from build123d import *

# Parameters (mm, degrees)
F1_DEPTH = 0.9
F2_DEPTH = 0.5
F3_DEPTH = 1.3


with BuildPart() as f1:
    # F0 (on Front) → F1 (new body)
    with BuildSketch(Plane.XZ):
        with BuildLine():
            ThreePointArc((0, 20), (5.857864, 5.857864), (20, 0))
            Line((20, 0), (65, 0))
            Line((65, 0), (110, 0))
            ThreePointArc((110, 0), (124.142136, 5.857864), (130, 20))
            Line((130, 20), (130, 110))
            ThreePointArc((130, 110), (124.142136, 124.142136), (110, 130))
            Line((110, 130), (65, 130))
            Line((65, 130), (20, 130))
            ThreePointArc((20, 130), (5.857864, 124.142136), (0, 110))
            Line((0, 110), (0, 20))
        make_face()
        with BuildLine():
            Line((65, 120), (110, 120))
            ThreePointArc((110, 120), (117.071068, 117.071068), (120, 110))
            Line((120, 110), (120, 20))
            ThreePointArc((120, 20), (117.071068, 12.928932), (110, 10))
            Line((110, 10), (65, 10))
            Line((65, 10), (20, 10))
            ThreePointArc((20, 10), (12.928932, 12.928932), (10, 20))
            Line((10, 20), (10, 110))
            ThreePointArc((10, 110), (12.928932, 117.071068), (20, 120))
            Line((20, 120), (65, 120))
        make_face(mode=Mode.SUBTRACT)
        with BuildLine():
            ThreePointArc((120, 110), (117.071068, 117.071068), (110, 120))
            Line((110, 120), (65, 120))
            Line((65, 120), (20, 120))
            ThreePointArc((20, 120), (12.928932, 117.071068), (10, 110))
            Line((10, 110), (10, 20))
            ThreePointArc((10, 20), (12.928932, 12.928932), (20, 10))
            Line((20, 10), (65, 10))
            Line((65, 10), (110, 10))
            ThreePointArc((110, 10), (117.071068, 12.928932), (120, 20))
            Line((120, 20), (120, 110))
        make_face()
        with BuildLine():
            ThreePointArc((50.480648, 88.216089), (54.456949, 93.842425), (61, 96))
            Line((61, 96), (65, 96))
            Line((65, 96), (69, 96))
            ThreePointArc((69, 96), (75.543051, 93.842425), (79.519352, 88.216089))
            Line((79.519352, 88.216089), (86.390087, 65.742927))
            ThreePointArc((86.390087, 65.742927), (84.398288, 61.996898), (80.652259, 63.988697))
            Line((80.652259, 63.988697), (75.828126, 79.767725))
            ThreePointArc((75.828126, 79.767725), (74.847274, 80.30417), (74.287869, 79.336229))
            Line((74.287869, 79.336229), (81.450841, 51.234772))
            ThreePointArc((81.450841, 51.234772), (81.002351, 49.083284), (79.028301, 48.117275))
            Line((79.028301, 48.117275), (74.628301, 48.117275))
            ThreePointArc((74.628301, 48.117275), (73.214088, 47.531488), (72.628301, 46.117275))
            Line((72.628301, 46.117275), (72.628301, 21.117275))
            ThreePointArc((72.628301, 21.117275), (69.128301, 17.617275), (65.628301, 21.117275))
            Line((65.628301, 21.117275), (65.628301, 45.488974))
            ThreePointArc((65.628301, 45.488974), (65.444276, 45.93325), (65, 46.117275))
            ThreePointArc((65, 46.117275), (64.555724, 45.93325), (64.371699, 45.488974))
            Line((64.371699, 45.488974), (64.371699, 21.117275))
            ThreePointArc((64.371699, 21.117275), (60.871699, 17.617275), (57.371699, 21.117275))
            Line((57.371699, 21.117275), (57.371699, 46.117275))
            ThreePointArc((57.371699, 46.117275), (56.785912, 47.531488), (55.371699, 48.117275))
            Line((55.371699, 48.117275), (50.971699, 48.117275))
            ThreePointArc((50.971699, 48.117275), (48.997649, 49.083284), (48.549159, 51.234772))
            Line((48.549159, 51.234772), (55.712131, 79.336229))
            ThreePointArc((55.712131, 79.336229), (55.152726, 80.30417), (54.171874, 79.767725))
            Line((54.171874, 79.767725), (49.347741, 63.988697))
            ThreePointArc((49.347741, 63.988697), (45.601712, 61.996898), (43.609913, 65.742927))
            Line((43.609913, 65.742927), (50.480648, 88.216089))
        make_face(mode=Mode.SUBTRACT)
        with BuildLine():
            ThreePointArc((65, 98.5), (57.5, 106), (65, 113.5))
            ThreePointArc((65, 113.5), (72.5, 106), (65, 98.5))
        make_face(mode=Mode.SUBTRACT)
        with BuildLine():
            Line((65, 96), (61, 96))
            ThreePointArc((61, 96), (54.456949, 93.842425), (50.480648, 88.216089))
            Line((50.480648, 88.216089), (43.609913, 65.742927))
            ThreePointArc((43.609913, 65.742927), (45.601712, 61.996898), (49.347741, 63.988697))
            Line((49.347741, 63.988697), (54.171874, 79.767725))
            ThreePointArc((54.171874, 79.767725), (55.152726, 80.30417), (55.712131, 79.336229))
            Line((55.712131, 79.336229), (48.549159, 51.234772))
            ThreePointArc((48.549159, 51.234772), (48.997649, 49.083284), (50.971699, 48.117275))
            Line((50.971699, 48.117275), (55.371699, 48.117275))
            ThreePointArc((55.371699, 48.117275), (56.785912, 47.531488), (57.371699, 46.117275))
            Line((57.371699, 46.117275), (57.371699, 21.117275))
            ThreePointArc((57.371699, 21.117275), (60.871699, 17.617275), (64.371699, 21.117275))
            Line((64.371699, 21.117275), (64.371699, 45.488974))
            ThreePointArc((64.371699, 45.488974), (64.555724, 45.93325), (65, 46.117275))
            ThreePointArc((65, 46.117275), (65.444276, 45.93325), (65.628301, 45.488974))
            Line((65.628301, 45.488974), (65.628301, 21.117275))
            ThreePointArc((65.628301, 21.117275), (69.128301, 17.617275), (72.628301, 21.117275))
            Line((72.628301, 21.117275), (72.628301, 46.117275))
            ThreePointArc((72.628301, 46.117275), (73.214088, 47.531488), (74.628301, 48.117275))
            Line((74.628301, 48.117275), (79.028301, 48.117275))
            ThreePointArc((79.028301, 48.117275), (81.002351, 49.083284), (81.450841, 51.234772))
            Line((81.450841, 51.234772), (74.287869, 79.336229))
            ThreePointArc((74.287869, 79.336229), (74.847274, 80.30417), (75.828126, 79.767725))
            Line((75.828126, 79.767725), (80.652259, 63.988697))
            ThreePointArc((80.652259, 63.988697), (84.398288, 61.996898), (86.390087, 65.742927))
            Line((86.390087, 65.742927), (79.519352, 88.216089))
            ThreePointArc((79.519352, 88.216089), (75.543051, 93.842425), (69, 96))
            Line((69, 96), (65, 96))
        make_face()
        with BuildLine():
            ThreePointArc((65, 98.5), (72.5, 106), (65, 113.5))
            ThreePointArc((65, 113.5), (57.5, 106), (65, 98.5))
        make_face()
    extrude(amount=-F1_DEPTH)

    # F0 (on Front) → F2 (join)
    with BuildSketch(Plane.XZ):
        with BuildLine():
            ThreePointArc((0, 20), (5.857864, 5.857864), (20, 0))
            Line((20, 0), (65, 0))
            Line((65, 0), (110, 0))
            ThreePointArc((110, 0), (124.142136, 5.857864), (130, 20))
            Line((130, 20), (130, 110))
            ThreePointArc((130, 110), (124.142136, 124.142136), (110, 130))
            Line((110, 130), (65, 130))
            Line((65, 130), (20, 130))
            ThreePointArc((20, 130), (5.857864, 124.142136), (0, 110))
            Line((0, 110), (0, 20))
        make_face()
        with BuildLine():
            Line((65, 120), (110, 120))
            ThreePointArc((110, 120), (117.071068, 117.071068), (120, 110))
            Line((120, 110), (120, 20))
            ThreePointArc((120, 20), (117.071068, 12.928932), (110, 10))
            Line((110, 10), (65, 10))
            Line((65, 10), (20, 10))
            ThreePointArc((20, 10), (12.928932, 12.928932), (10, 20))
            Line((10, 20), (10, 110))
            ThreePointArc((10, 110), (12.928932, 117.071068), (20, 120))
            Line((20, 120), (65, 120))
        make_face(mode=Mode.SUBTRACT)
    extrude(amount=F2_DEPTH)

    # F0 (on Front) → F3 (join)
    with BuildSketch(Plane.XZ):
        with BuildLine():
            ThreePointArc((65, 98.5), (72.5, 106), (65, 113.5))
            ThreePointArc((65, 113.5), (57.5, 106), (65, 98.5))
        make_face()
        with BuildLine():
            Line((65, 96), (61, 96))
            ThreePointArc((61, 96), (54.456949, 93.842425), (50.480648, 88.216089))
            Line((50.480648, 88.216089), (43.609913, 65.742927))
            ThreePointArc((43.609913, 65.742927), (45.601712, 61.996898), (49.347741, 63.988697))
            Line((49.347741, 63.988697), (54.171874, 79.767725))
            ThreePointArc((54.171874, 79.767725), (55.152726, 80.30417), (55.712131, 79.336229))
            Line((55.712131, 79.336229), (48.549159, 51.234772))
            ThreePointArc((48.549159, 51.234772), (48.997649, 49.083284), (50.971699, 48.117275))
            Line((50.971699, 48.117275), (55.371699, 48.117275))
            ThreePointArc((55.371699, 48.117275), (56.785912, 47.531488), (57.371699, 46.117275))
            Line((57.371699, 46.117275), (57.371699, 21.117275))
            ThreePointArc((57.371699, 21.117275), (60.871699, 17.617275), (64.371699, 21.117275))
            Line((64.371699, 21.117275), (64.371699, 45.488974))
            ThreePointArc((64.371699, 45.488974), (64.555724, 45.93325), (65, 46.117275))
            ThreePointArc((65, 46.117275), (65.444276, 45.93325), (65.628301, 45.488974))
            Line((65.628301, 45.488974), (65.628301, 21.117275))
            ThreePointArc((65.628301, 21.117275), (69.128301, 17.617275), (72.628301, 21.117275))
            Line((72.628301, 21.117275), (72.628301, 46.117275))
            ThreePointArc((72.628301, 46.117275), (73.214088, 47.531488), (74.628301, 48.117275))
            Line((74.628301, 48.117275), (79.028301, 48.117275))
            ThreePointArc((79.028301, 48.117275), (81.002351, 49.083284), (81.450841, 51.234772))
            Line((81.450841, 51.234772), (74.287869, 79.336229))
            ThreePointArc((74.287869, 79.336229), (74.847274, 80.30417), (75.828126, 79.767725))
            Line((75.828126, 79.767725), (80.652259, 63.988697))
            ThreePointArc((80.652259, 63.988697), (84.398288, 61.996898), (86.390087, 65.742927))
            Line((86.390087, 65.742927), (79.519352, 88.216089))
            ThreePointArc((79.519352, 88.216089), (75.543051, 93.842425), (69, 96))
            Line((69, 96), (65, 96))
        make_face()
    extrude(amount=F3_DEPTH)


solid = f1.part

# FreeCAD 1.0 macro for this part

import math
import FreeCAD as App
import Part
import Sketcher
Q = App.Units.Quantity

doc = App.newDocument("Part")
body = doc.addObject("PartDesign::Body", "Body")

# Sketch on XZ plane
sketch1 = body.newObject("Sketcher::SketchObject", "Sketch")
sketch1.AttachmentSupport = (doc.getObject("XZ_Plane"), [""])
sketch1.MapMode = "FlatFace"
sketch1.addGeometry(Part.ArcOfCircle(Part.Circle(App.Vector(20, 20, 0), App.Vector(0, 0, 1), 20), math.radians(180), math.radians(270)), False)
sketch1.addGeometry(Part.LineSegment(App.Vector(20, 0, 0), App.Vector(110, 0, 0)), False)
sketch1.addGeometry(Part.ArcOfCircle(Part.Circle(App.Vector(110, 20, 0), App.Vector(0, 0, 1), 20), math.radians(-90), math.radians(0)), False)
sketch1.addGeometry(Part.LineSegment(App.Vector(130, 20, 0), App.Vector(130, 110, 0)), False)
sketch1.addGeometry(Part.ArcOfCircle(Part.Circle(App.Vector(110, 110, 0), App.Vector(0, 0, 1), 20), math.radians(0), math.radians(90)), False)
sketch1.addGeometry(Part.LineSegment(App.Vector(110, 130, 0), App.Vector(20, 130, 0)), False)
sketch1.addGeometry(Part.ArcOfCircle(Part.Circle(App.Vector(20, 110, 0), App.Vector(0, 0, 1), 20), math.radians(90), math.radians(180)), False)
sketch1.addGeometry(Part.LineSegment(App.Vector(0, 110, 0), App.Vector(0, 20, 0)), False)
sketch1.addConstraint(Sketcher.Constraint("Tangent", 0, 2, 1, 1))
sketch1.addConstraint(Sketcher.Constraint("Tangent", 1, 2, 2, 1))
sketch1.addConstraint(Sketcher.Constraint("Tangent", 2, 2, 3, 1))
sketch1.addConstraint(Sketcher.Constraint("Tangent", 3, 2, 4, 1))
sketch1.addConstraint(Sketcher.Constraint("Tangent", 4, 2, 5, 1))
sketch1.addConstraint(Sketcher.Constraint("Tangent", 5, 2, 6, 1))
sketch1.addConstraint(Sketcher.Constraint("Tangent", 6, 2, 7, 1))
sketch1.addConstraint(Sketcher.Constraint("Tangent", 7, 2, 0, 1))
sketch1.addConstraint(Sketcher.Constraint("Horizontal", 1))
sketch1.addConstraint(Sketcher.Constraint("Vertical", 3))
sketch1.addConstraint(Sketcher.Constraint("Horizontal", 5))
sketch1.addConstraint(Sketcher.Constraint("Vertical", 7))
sketch1.addConstraint(Sketcher.Constraint("Equal", 0, 2))
sketch1.addConstraint(Sketcher.Constraint("Equal", 2, 4))
sketch1.addConstraint(Sketcher.Constraint("Equal", 4, 6))
sketch1.addConstraint(Sketcher.Constraint("PointOnObject", 0, 2, -1))
sketch1.addConstraint(Sketcher.Constraint("PointOnObject", 6, 2, -2))
sketch1.addConstraint(Sketcher.Constraint("Equal", 5, 3))
sketch1.addConstraint(Sketcher.Constraint("Radius", 0, 19.999999))
sketch1.addConstraint(Sketcher.Constraint("DistanceX", 1, 1, 1, 2, 90.0))
pad1 = body.newObject("PartDesign::Pad", "Pad")
pad1.Profile = sketch1
pad1.Length = 0.9
pad1.Reversed = True

# Sketch on XZ plane
sketch2 = body.newObject("Sketcher::SketchObject", "Sketch001")
sketch2.AttachmentSupport = (doc.getObject("XZ_Plane"), [""])
sketch2.MapMode = "FlatFace"
sketch2.addGeometry(Part.ArcOfCircle(Part.Circle(App.Vector(20, 20, 0), App.Vector(0, 0, 1), 20), math.radians(180), math.radians(270)), False)
sketch2.addGeometry(Part.LineSegment(App.Vector(20, 0, 0), App.Vector(110, 0, 0)), False)
sketch2.addGeometry(Part.ArcOfCircle(Part.Circle(App.Vector(110, 20, 0), App.Vector(0, 0, 1), 20), math.radians(-90), math.radians(0)), False)
sketch2.addGeometry(Part.LineSegment(App.Vector(130, 20, 0), App.Vector(130, 110, 0)), False)
sketch2.addGeometry(Part.ArcOfCircle(Part.Circle(App.Vector(110, 110, 0), App.Vector(0, 0, 1), 20), math.radians(0), math.radians(90)), False)
sketch2.addGeometry(Part.LineSegment(App.Vector(110, 130, 0), App.Vector(20, 130, 0)), False)
sketch2.addGeometry(Part.ArcOfCircle(Part.Circle(App.Vector(20, 110, 0), App.Vector(0, 0, 1), 20), math.radians(90), math.radians(180)), False)
sketch2.addGeometry(Part.LineSegment(App.Vector(0, 110, 0), App.Vector(0, 20, 0)), False)
sketch2.addGeometry(Part.LineSegment(App.Vector(20, 120, 0), App.Vector(110, 120, 0)), False)
sketch2.addGeometry(Part.ArcOfCircle(Part.Circle(App.Vector(110, 110, 0), App.Vector(0, 0, 1), 10), math.radians(0), math.radians(90)), False)
sketch2.addGeometry(Part.LineSegment(App.Vector(120, 110, 0), App.Vector(120, 20, 0)), False)
sketch2.addGeometry(Part.ArcOfCircle(Part.Circle(App.Vector(110, 20, 0), App.Vector(0, 0, 1), 10), math.radians(-90), math.radians(0)), False)
sketch2.addGeometry(Part.LineSegment(App.Vector(110, 10, 0), App.Vector(20, 10, 0)), False)
sketch2.addGeometry(Part.ArcOfCircle(Part.Circle(App.Vector(20, 20, 0), App.Vector(0, 0, 1), 10), math.radians(180), math.radians(270)), False)
sketch2.addGeometry(Part.LineSegment(App.Vector(10, 20, 0), App.Vector(10, 110, 0)), False)
sketch2.addGeometry(Part.ArcOfCircle(Part.Circle(App.Vector(20, 110, 0), App.Vector(0, 0, 1), 10), math.radians(90), math.radians(180)), False)
sketch2.addConstraint(Sketcher.Constraint("Tangent", 0, 2, 1, 1))
sketch2.addConstraint(Sketcher.Constraint("Tangent", 1, 2, 2, 1))
sketch2.addConstraint(Sketcher.Constraint("Tangent", 2, 2, 3, 1))
sketch2.addConstraint(Sketcher.Constraint("Tangent", 3, 2, 4, 1))
sketch2.addConstraint(Sketcher.Constraint("Tangent", 4, 2, 5, 1))
sketch2.addConstraint(Sketcher.Constraint("Tangent", 5, 2, 6, 1))
sketch2.addConstraint(Sketcher.Constraint("Tangent", 6, 2, 7, 1))
sketch2.addConstraint(Sketcher.Constraint("Tangent", 7, 2, 0, 1))
sketch2.addConstraint(Sketcher.Constraint("Tangent", 8, 2, 9, 2))
sketch2.addConstraint(Sketcher.Constraint("Tangent", 9, 1, 10, 1))
sketch2.addConstraint(Sketcher.Constraint("Tangent", 10, 2, 11, 2))
sketch2.addConstraint(Sketcher.Constraint("Tangent", 11, 1, 12, 1))
sketch2.addConstraint(Sketcher.Constraint("Tangent", 12, 2, 13, 2))
sketch2.addConstraint(Sketcher.Constraint("Tangent", 13, 1, 14, 1))
sketch2.addConstraint(Sketcher.Constraint("Tangent", 14, 2, 15, 2))
sketch2.addConstraint(Sketcher.Constraint("Tangent", 15, 1, 8, 1))
sketch2.addConstraint(Sketcher.Constraint("Horizontal", 1))
sketch2.addConstraint(Sketcher.Constraint("Vertical", 3))
sketch2.addConstraint(Sketcher.Constraint("Horizontal", 5))
sketch2.addConstraint(Sketcher.Constraint("Vertical", 7))
sketch2.addConstraint(Sketcher.Constraint("Horizontal", 8))
sketch2.addConstraint(Sketcher.Constraint("Vertical", 10))
sketch2.addConstraint(Sketcher.Constraint("Horizontal", 12))
sketch2.addConstraint(Sketcher.Constraint("Vertical", 14))
sketch2.addConstraint(Sketcher.Constraint("Coincident", 9, 3, 4, 3))
sketch2.addConstraint(Sketcher.Constraint("Coincident", 11, 3, 2, 3))
sketch2.addConstraint(Sketcher.Constraint("Coincident", 13, 3, 0, 3))
sketch2.addConstraint(Sketcher.Constraint("Equal", 0, 2))
sketch2.addConstraint(Sketcher.Constraint("Equal", 2, 4))
sketch2.addConstraint(Sketcher.Constraint("Equal", 4, 6))
sketch2.addConstraint(Sketcher.Constraint("Equal", 13, 15))
sketch2.addConstraint(Sketcher.Constraint("PointOnObject", 0, 2, -1))
sketch2.addConstraint(Sketcher.Constraint("PointOnObject", 6, 2, -2))
sketch2.addConstraint(Sketcher.Constraint("Equal", 12, 3))
sketch2.addConstraint(Sketcher.Constraint("Radius", 0, 19.999999))
sketch2.addConstraint(Sketcher.Constraint("Radius", 9, 9.999999))
sketch2.addConstraint(Sketcher.Constraint("DistanceX", 1, 1, 1, 2, 90.0))
pad2 = body.newObject("PartDesign::Pad", "Pad001")
pad2.Profile = sketch2
pad2.Length = 0.5

# Sketch on XZ plane
sketch3 = body.newObject("Sketcher::SketchObject", "Sketch002")
sketch3.AttachmentSupport = (doc.getObject("XZ_Plane"), [""])
sketch3.MapMode = "FlatFace"
sketch3.addGeometry(Part.Circle(App.Vector(65, 106, 0), App.Vector(0, 0, 1), 7.5), False)
sketch3.addGeometry(Part.ArcOfCircle(Part.Circle(App.Vector(61, 85, 0), App.Vector(0, 0, 1), 11), math.radians(90), math.radians(163)), False)
sketch3.addGeometry(Part.LineSegment(App.Vector(50.5, 88.2, 0), App.Vector(43.6, 65.7, 0)), False)
sketch3.addGeometry(Part.ArcOfCircle(Part.Circle(App.Vector(46.5, 64.9, 0), App.Vector(0, 0, 1), 3), math.radians(163), math.radians(343)), False)
sketch3.addGeometry(Part.LineSegment(App.Vector(49.3, 64, 0), App.Vector(54.2, 79.8, 0)), False)
sketch3.addGeometry(Part.ArcOfCircle(Part.Circle(App.Vector(54.9, 79.5, 0), App.Vector(0, 0, 1), 0.8), math.radians(-14), math.radians(163)), False)
sketch3.addGeometry(Part.LineSegment(App.Vector(55.7, 79.3, 0), App.Vector(48.5, 51.2, 0)), False)
sketch3.addGeometry(Part.ArcOfCircle(Part.Circle(App.Vector(51, 50.6, 0), App.Vector(0, 0, 1), 2.5), math.radians(166), math.radians(270)), False)
sketch3.addGeometry(Part.LineSegment(App.Vector(51, 48.1, 0), App.Vector(55.4, 48.1, 0)), False)
sketch3.addGeometry(Part.ArcOfCircle(Part.Circle(App.Vector(55.4, 46.1, 0), App.Vector(0, 0, 1), 2), math.radians(0), math.radians(90)), False)
sketch3.addGeometry(Part.LineSegment(App.Vector(57.4, 46.1, 0), App.Vector(57.4, 21.1, 0)), False)
sketch3.addGeometry(Part.ArcOfCircle(Part.Circle(App.Vector(60.9, 21.1, 0), App.Vector(0, 0, 1), 3.5), math.radians(180), math.radians(360)), False)
sketch3.addGeometry(Part.LineSegment(App.Vector(64.4, 21.1, 0), App.Vector(64.4, 45.5, 0)), False)
sketch3.addGeometry(Part.ArcOfCircle(Part.Circle(App.Vector(65, 45.5, 0), App.Vector(0, 0, 1), 0.6), math.radians(90), math.radians(180)), False)
sketch3.addGeometry(Part.ArcOfCircle(Part.Circle(App.Vector(65, 45.5, 0), App.Vector(0, 0, 1), 0.6), math.radians(0), math.radians(90)), False)
sketch3.addGeometry(Part.LineSegment(App.Vector(65.6, 45.5, 0), App.Vector(65.6, 21.1, 0)), False)
sketch3.addGeometry(Part.ArcOfCircle(Part.Circle(App.Vector(69.1, 21.1, 0), App.Vector(0, 0, 1), 3.5), math.radians(180), math.radians(360)), False)
sketch3.addGeometry(Part.LineSegment(App.Vector(72.6, 21.1, 0), App.Vector(72.6, 46.1, 0)), False)
sketch3.addGeometry(Part.ArcOfCircle(Part.Circle(App.Vector(74.6, 46.1, 0), App.Vector(0, 0, 1), 2), math.radians(90), math.radians(180)), False)
sketch3.addGeometry(Part.LineSegment(App.Vector(74.6, 48.1, 0), App.Vector(79, 48.1, 0)), False)
sketch3.addGeometry(Part.ArcOfCircle(Part.Circle(App.Vector(79, 50.6, 0), App.Vector(0, 0, 1), 2.5), math.radians(-90), math.radians(14)), False)
sketch3.addGeometry(Part.LineSegment(App.Vector(81.5, 51.2, 0), App.Vector(74.3, 79.3, 0)), False)
sketch3.addGeometry(Part.ArcOfCircle(Part.Circle(App.Vector(75.1, 79.5, 0), App.Vector(0, 0, 1), 0.8), math.radians(17), math.radians(194)), False)
sketch3.addGeometry(Part.LineSegment(App.Vector(75.8, 79.8, 0), App.Vector(80.7, 64, 0)), False)
sketch3.addGeometry(Part.ArcOfCircle(Part.Circle(App.Vector(83.5, 64.9, 0), App.Vector(0, 0, 1), 3), math.radians(-163), math.radians(17)), False)
sketch3.addGeometry(Part.LineSegment(App.Vector(86.4, 65.7, 0), App.Vector(79.5, 88.2, 0)), False)
sketch3.addGeometry(Part.ArcOfCircle(Part.Circle(App.Vector(69, 85, 0), App.Vector(0, 0, 1), 11), math.radians(17), math.radians(90)), False)
sketch3.addGeometry(Part.LineSegment(App.Vector(69, 96, 0), App.Vector(61, 96, 0)), False)
sketch3.addConstraint(Sketcher.Constraint("Tangent", 1, 2, 2, 1))
sketch3.addConstraint(Sketcher.Constraint("Tangent", 2, 2, 3, 1))
sketch3.addConstraint(Sketcher.Constraint("Tangent", 3, 2, 4, 1))
sketch3.addConstraint(Sketcher.Constraint("Tangent", 4, 2, 5, 2))
sketch3.addConstraint(Sketcher.Constraint("Tangent", 5, 1, 6, 1))
sketch3.addConstraint(Sketcher.Constraint("Tangent", 6, 2, 7, 1))
sketch3.addConstraint(Sketcher.Constraint("Tangent", 7, 2, 8, 1))
sketch3.addConstraint(Sketcher.Constraint("Tangent", 8, 2, 9, 2))
sketch3.addConstraint(Sketcher.Constraint("Tangent", 9, 1, 10, 1))
sketch3.addConstraint(Sketcher.Constraint("Tangent", 10, 2, 11, 1))
sketch3.addConstraint(Sketcher.Constraint("Tangent", 11, 2, 12, 1))
sketch3.addConstraint(Sketcher.Constraint("Tangent", 12, 2, 13, 2))
sketch3.addConstraint(Sketcher.Constraint("Tangent", 13, 1, 14, 2))
sketch3.addConstraint(Sketcher.Constraint("Tangent", 14, 1, 15, 1))
sketch3.addConstraint(Sketcher.Constraint("Tangent", 15, 2, 16, 1))
sketch3.addConstraint(Sketcher.Constraint("Tangent", 16, 2, 17, 1))
sketch3.addConstraint(Sketcher.Constraint("Tangent", 17, 2, 18, 2))
sketch3.addConstraint(Sketcher.Constraint("Tangent", 18, 1, 19, 1))
sketch3.addConstraint(Sketcher.Constraint("Tangent", 19, 2, 20, 1))
sketch3.addConstraint(Sketcher.Constraint("Tangent", 20, 2, 21, 1))
sketch3.addConstraint(Sketcher.Constraint("Tangent", 21, 2, 22, 2))
sketch3.addConstraint(Sketcher.Constraint("Tangent", 22, 1, 23, 1))
sketch3.addConstraint(Sketcher.Constraint("Tangent", 23, 2, 24, 1))
sketch3.addConstraint(Sketcher.Constraint("Tangent", 24, 2, 25, 1))
sketch3.addConstraint(Sketcher.Constraint("Tangent", 25, 2, 26, 1))
sketch3.addConstraint(Sketcher.Constraint("Tangent", 26, 2, 27, 1))
sketch3.addConstraint(Sketcher.Constraint("Tangent", 27, 2, 1, 1))
sketch3.addConstraint(Sketcher.Constraint("Horizontal", 8))
sketch3.addConstraint(Sketcher.Constraint("Vertical", 10))
sketch3.addConstraint(Sketcher.Constraint("Vertical", 12))
sketch3.addConstraint(Sketcher.Constraint("Vertical", 15))
sketch3.addConstraint(Sketcher.Constraint("Vertical", 17))
sketch3.addConstraint(Sketcher.Constraint("Horizontal", 19))
sketch3.addConstraint(Sketcher.Constraint("Horizontal", 27))
sketch3.addConstraint(Sketcher.Constraint("Equal", 13, 14))
sketch3.addConstraint(Sketcher.Constraint("Equal", 11, 16))
sketch3.addConstraint(Sketcher.Constraint("Equal", 9, 18))
sketch3.addConstraint(Sketcher.Constraint("Equal", 7, 20))
sketch3.addConstraint(Sketcher.Constraint("Equal", 5, 22))
sketch3.addConstraint(Sketcher.Constraint("Equal", 3, 24))
sketch3.addConstraint(Sketcher.Constraint("Equal", 1, 26))
sketch3.addConstraint(Sketcher.Constraint("Parallel", 2, 4))
sketch3.addConstraint(Sketcher.Constraint("Parallel", 23, 25))
sketch3.addConstraint(Sketcher.Constraint("Horizontal", 11, 3, 16, 3))
sketch3.addConstraint(Sketcher.Constraint("Horizontal", 9, 3, 18, 3))
sketch3.addConstraint(Sketcher.Constraint("Horizontal", 5, 3, 22, 3))
sketch3.addConstraint(Sketcher.Constraint("Horizontal", 3, 3, 24, 3))
sketch3.addConstraint(Sketcher.Constraint("Horizontal", 9, 1, 13, 1))
sketch3.addConstraint(Sketcher.Constraint("Horizontal", 6, 2, 20, 2))
sketch3.addConstraint(Sketcher.Constraint("Horizontal", 4, 2, 22, 1))
sketch3.addConstraint(Sketcher.Constraint("Vertical", 0, 3, 13, 3))
sketch3.addConstraint(Sketcher.Constraint("Vertical", 14, 3, 13, 1))
sketch3.addConstraint(Sketcher.Constraint("Equal", 8, 19))
sketch3.addConstraint(Sketcher.Constraint("Diameter", 0, 15.0))
sketch3.addConstraint(Sketcher.Constraint("Radius", 1, 11.0))
sketch3.addConstraint(Sketcher.Constraint("Radius", 3, 3.0))
sketch3.addConstraint(Sketcher.Constraint("Radius", 9, 2.000002))
sketch3.addConstraint(Sketcher.Constraint("Radius", 5, 0.8))
sketch3.addConstraint(Sketcher.Constraint("Radius", 7, 2.5))
sketch3.addConstraint(Sketcher.Constraint("Radius", 11, 3.5))
sketch3.addConstraint(Sketcher.Constraint("DistanceX", 27, 2, 27, 1, 8.0))
sketch3.addConstraint(Sketcher.Constraint("DistanceY", 10, 2, 10, 1, 25.0))
sketch3.addConstraint(Sketcher.Constraint("Angle", 2, Q("-107 deg")))
sketch3.addConstraint(Sketcher.Constraint("Distance", 6, 29.000001))
sketch3.addConstraint(Sketcher.Constraint("DistanceX", 8, 1, 8, 2, 4.4))
sketch3.addConstraint(Sketcher.Constraint("DistanceX", -1, 1, 0, 3, 65.0))
sketch3.addConstraint(Sketcher.Constraint("DistanceY", -1, 1, 0, 3, 106.0))
sketch3.addConstraint(Sketcher.Constraint("DistanceY", -1, 1, 1, 3, 85.0))
sketch3.addConstraint(Sketcher.Constraint("Angle", 6, Q("-104.300001 deg")))
sketch3.addConstraint(Sketcher.Constraint("Distance", 2, 23.5))
sketch3.addConstraint(Sketcher.Constraint("Distance", 4, 16.5))
pad3 = body.newObject("PartDesign::Pad", "Pad002")
pad3.Profile = sketch3
pad3.Length = 1.3

doc.recompute()
